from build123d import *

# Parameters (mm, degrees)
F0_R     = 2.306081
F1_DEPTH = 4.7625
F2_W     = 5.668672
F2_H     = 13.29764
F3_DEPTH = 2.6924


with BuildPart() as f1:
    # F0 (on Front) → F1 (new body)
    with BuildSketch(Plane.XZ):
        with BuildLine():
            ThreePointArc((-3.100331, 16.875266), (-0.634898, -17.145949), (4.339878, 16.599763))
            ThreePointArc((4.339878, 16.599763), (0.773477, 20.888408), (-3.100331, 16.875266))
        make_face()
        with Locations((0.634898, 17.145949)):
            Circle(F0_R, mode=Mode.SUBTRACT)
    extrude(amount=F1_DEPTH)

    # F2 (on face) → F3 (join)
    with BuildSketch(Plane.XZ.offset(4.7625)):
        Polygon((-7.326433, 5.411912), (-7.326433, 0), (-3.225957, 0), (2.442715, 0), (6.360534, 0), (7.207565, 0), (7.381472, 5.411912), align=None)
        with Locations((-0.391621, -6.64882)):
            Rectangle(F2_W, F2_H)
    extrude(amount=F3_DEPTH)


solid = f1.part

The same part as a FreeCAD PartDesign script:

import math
import FreeCAD as App
import Part
import Sketcher
from FreeCAD import Vector
Q = App.Units.Quantity

doc = App.newDocument("Part")
body = doc.addObject("PartDesign::Body", "Body")

# Sketch on XZ plane
sketch1 = doc.addObject("Sketcher::SketchObject", "Sketch")
body.addObject(sketch1)
sketch1.AttachmentSupport = (doc.XZ_Plane, [""])
sketch1.MapMode = "FlatFace"
sketch1.addGeometry([
    Part.ArcOfCircle(Part.Circle(Vector(0.000001, 0, 0), Vector(0, 0, 1), 17.1577), math.radians(100.410318), math.radians(435.348417)),
    Part.ArcOfCircle(Part.Circle(Vector(0.634897, 17.145949, 0), Vector(0, 0, 1), 3.745023), math.radians(-8.386113), math.radians(184.144847)),
    Part.Circle(Vector(0.634898, 17.145949, 0), Vector(0, 0, 1), 2.306081),
], False)
sketch1.addConstraint([
    Sketcher.Constraint("Coincident", 0, 1, 1, 2),
    Sketcher.Constraint("Coincident", 1, 1, 0, 2),
    Sketcher.Constraint("Coincident", 0, 3, -1, 1),
    Sketcher.Constraint("Coincident", 2, 3, 1, 3),
    Sketcher.Constraint("Radius", 0, Q("0.6755 in")),
    Sketcher.Constraint("Diameter", 2, Q("4.612162 mm")),
    Sketcher.Constraint("Radius", 1, Q("3.745023 mm")),
    Sketcher.Constraint("DistanceY", -1, 1, 1, 3, Q("17.145949 mm")),
    Sketcher.Constraint("DistanceX", 0, 1, -1, 1, Q("3.100331 mm")),
])
pad1 = doc.addObject("PartDesign::Pad", "Pad")
body.addObject(pad1)
pad1.Profile = sketch1
pad1.Length = Q("0.1875 in")

# Sketch on XZ plane
sketch2 = doc.addObject("Sketcher::SketchObject", "Sketch001")
body.addObject(sketch2)
sketch2.AttachmentSupport = (doc.XZ_Plane, [""])
sketch2.MapMode = "FlatFace"
sketch2.AttachmentOffset = App.Placement(Vector(0, 0, 0.1875 * 25.4), App.Rotation())
sketch2.addGeometry([
    Part.LineSegment(Vector(-7.326433, 5.411912, 0), Vector(-7.326433, 0, 0)),  # 0
    Part.LineSegment(Vector(-7.326433, 0, 0), Vector(-3.225957, 0, 0)),  # 1
    Part.LineSegment(Vector(-3.225957, 0, 0), Vector(-3.225957, -13.29764, 0)),  # 2
    Part.LineSegment(Vector(-3.225957, -13.29764, 0), Vector(2.442715, -13.29764, 0)),  # 3
    Part.LineSegment(Vector(2.442715, -13.29764, 0), Vector(2.442715, 0, 0)),  # 4
    Part.LineSegment(Vector(2.442715, 0, 0), Vector(7.207565, 0, 0)),  # 5
    Part.LineSegment(Vector(7.207565, 0, 0), Vector(7.381472, 5.411912, 0)),  # 6
    Part.LineSegment(Vector(7.381472, 5.411912, 0), Vector(-7.326433, 5.411912, 0)),  # 7
], False)
sketch2.addConstraint([
    Sketcher.Constraint("Coincident", 0, 2, 1, 1),
    Sketcher.Constraint("Coincident", 1, 2, 2, 1),
    Sketcher.Constraint("Coincident", 2, 2, 3, 1),
    Sketcher.Constraint("Coincident", 3, 2, 4, 1),
    Sketcher.Constraint("Coincident", 4, 2, 5, 1),
    Sketcher.Constraint("Coincident", 5, 2, 6, 1),
    Sketcher.Constraint("Coincident", 6, 2, 7, 1),
    Sketcher.Constraint("Coincident", 7, 2, 0, 1),
    Sketcher.Constraint("Vertical", 0),
    Sketcher.Constraint("Horizontal", 1),
    Sketcher.Constraint("Vertical", 2),
    Sketcher.Constraint("Horizontal", 3),
    Sketcher.Constraint("Vertical", 4),
    Sketcher.Constraint("Horizontal", 5),
    Sketcher.Constraint("Horizontal", 7),
    Sketcher.Constraint("PointOnObject", 0, 2, -1),
    Sketcher.Constraint("PointOnObject", 4, 2, -1),
    Sketcher.Constraint("DistanceX", 5, 1, 5, 2, Q("4.76485 mm")),
    Sketcher.Constraint("DistanceY", 2, 2, 2, 1, Q("13.29764 mm")),
    Sketcher.Constraint("DistanceX", 1, 1, 1, 2, Q("4.100476 mm")),
    Sketcher.Constraint("DistanceX", 3, 1, 3, 2, Q("5.668672 mm")),
    Sketcher.Constraint("DistanceX", 7, 2, 7, 1, Q("14.707905 mm")),
    Sketcher.Constraint("DistanceY", 0, 2, 0, 1, Q("5.411912 mm")),
    Sketcher.Constraint("DistanceX", -1, 1, 6, 2, Q("7.381472 mm")),
])
pad2 = doc.addObject("PartDesign::Pad", "Pad001")
body.addObject(pad2)
pad2.Profile = sketch2
pad2.Length = Q("0.106 in")

doc.recompute()
